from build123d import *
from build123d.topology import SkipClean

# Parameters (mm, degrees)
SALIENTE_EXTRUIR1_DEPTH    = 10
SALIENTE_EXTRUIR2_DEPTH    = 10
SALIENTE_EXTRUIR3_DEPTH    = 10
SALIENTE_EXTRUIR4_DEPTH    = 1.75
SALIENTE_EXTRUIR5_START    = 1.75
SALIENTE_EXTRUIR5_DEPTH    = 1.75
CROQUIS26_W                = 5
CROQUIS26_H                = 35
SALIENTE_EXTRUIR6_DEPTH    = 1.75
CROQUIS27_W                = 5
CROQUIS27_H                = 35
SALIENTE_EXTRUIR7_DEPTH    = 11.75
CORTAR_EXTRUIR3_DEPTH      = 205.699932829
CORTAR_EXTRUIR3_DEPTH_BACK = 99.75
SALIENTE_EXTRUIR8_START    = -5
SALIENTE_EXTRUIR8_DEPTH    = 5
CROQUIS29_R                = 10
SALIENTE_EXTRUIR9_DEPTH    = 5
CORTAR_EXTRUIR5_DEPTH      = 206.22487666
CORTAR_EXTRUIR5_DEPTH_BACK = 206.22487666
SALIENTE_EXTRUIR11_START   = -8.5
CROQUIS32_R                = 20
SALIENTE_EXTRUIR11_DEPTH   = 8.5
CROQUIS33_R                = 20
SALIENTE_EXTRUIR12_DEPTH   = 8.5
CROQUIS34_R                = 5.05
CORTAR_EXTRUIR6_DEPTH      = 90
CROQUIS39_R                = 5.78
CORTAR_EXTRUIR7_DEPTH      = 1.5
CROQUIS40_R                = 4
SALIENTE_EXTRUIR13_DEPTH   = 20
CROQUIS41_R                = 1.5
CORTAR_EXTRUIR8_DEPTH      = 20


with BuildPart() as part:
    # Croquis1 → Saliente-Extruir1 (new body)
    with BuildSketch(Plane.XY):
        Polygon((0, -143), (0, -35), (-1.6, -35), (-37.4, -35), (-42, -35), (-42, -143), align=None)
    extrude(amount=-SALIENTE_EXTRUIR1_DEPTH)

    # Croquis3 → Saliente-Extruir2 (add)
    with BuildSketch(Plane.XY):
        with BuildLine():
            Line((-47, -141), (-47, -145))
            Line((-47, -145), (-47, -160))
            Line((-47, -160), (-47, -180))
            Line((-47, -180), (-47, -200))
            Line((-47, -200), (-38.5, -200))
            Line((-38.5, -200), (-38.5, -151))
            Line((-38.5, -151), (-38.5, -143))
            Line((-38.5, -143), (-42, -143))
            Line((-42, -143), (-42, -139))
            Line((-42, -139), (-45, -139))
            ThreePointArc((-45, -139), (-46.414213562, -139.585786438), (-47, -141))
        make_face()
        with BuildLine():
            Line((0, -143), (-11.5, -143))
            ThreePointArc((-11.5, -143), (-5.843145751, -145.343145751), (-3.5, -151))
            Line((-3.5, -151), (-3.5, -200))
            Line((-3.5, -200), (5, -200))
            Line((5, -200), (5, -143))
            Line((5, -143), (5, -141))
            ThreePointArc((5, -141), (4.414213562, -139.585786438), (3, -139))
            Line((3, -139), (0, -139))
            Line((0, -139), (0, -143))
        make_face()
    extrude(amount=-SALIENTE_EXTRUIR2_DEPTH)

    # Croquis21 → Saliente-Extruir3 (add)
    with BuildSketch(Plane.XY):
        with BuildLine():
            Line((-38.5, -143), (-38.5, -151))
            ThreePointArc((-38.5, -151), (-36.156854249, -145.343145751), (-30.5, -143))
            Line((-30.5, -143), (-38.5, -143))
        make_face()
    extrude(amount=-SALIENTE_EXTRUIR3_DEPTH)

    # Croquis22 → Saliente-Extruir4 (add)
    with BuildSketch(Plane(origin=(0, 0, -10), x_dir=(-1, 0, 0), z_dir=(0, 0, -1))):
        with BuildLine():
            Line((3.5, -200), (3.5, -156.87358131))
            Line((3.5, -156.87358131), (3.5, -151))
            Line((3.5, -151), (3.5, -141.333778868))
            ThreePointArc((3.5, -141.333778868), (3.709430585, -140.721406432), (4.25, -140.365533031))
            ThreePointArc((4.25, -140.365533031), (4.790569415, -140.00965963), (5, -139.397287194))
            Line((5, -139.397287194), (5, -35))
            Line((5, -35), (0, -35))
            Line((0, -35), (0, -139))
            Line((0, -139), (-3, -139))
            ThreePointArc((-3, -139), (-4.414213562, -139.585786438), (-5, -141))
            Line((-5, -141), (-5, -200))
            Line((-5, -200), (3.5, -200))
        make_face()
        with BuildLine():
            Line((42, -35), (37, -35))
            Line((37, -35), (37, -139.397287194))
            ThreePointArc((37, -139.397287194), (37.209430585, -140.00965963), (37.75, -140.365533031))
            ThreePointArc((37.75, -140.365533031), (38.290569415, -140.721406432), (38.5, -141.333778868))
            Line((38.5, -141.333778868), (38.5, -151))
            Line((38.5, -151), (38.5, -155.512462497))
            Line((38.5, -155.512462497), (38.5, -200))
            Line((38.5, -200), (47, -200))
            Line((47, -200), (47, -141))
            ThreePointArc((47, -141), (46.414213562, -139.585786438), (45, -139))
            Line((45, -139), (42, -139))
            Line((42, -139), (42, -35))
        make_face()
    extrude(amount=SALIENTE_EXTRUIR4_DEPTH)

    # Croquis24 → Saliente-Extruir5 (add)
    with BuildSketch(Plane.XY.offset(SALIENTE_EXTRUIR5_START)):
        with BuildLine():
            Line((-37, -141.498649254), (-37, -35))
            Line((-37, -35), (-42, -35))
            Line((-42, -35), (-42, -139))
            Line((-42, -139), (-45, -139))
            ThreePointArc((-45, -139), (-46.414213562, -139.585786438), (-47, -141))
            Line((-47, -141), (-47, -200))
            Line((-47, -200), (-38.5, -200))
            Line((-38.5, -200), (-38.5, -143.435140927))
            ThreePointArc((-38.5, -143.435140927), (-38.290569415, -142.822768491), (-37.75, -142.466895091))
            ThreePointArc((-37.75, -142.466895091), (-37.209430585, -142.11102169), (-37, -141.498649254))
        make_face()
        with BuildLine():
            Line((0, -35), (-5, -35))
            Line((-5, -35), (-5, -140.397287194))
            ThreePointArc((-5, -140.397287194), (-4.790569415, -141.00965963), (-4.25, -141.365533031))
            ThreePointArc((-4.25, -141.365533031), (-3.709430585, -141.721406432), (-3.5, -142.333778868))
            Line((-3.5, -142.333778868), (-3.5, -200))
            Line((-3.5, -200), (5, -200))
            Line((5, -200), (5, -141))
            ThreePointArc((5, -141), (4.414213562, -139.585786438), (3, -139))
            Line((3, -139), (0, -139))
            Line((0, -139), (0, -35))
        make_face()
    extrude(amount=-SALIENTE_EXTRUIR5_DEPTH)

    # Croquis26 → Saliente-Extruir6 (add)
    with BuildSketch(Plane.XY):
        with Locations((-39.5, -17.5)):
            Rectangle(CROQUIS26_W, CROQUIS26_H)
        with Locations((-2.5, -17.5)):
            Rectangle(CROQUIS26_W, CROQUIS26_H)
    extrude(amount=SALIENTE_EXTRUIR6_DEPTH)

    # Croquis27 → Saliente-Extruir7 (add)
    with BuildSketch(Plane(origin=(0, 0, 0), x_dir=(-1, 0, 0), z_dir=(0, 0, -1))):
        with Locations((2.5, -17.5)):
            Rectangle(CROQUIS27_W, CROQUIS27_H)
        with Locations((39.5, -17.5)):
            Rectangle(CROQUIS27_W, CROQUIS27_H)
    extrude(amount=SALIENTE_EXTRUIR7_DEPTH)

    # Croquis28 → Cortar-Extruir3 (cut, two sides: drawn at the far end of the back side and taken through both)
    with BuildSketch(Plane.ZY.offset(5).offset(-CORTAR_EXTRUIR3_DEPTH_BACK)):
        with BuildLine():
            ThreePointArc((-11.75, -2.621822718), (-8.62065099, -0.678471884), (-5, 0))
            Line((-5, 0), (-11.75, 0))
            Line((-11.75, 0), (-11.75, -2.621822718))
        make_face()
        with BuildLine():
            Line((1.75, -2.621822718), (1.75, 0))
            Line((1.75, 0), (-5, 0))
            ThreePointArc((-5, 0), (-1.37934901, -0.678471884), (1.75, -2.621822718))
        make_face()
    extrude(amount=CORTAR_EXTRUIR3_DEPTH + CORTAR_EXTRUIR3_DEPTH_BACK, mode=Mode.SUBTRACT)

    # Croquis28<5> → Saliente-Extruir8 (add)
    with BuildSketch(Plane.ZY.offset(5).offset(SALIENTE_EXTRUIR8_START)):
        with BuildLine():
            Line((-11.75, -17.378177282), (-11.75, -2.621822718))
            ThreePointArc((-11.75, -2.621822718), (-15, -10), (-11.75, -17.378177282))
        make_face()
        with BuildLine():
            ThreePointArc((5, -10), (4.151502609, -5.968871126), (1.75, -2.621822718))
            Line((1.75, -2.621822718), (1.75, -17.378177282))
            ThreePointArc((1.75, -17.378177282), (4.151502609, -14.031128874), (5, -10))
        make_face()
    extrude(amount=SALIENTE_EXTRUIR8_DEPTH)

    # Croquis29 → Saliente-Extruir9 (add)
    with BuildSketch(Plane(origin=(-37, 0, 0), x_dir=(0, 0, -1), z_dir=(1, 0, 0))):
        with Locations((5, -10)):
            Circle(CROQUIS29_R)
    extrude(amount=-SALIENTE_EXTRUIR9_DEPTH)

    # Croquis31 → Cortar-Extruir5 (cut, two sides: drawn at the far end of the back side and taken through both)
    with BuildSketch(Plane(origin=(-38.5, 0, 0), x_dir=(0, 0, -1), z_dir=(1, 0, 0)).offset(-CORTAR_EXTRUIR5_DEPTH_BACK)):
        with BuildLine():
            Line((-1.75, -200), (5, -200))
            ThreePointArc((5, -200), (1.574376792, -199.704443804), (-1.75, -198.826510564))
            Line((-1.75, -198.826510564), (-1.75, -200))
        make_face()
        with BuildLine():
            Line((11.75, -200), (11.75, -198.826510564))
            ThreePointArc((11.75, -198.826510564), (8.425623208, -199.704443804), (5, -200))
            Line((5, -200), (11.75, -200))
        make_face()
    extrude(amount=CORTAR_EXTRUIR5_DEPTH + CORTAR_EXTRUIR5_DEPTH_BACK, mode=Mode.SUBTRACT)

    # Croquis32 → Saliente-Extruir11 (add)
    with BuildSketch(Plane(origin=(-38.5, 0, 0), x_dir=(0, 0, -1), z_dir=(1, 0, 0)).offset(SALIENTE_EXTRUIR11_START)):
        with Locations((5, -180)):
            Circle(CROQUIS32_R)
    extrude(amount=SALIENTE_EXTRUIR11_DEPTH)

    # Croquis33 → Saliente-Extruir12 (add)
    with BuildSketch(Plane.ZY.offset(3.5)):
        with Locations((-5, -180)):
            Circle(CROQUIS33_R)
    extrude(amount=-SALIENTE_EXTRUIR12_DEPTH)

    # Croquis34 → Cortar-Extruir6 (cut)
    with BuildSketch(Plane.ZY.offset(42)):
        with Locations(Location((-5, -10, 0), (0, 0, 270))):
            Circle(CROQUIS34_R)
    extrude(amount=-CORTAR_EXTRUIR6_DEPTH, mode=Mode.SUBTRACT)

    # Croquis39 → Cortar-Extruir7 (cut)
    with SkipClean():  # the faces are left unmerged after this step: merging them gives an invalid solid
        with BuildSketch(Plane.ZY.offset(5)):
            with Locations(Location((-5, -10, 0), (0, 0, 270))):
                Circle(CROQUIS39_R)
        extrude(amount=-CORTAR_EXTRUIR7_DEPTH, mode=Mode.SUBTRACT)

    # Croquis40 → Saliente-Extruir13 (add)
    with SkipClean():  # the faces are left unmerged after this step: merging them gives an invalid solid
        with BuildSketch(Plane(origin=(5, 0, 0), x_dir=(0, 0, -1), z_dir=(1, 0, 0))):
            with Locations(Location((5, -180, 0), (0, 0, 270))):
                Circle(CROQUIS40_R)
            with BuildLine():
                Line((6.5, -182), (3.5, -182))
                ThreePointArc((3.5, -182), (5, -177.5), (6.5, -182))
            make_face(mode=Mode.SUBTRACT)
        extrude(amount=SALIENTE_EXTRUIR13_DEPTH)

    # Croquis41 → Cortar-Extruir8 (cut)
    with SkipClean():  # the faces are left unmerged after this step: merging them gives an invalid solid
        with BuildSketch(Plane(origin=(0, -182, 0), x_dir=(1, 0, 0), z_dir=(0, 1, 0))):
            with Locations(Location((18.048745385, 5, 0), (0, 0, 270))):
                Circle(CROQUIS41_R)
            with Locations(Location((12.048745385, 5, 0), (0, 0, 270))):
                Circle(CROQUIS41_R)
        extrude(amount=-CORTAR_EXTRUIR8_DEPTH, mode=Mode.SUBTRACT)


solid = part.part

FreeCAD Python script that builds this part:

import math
import FreeCAD as App
import Part
import Sketcher
Q = App.Units.Quantity


def add_polygon(sketch, points):
    """Adds a closed chain of lines whose ends are joined by coincident constraints."""
    first, n = sketch.GeometryCount, len(points)
    for a, b in zip(points, points[1:] + points[:1]):
        sketch.addGeometry(Part.LineSegment(App.Vector(*a, 0), App.Vector(*b, 0)), False)
    for i in range(n):
        sketch.addConstraint(Sketcher.Constraint("Coincident", first + i, 2, first + (i + 1) % n, 1))

doc = App.newDocument("Part")
body = doc.addObject("PartDesign::Body", "Body")

# Sketch on XY plane
sketch1 = doc.addObject("Sketcher::SketchObject", "Sketch")
body.addObject(sketch1)
sketch1.AttachmentSupport = (doc.XY_Plane, [""])
sketch1.MapMode = "FlatFace"
add_polygon(sketch1, [(0, -143), (0, -35), (-42, -35), (-42, -143)])  # lines 0-3
sketch1.addConstraint(Sketcher.Constraint("Vertical", 0))
sketch1.addConstraint(Sketcher.Constraint("Horizontal", 1))
sketch1.addConstraint(Sketcher.Constraint("Vertical", 2))
sketch1.addConstraint(Sketcher.Constraint("Horizontal", 3))
sketch1.addConstraint(Sketcher.Constraint("PointOnObject", 0, 2, -2))
sketch1.addConstraint(Sketcher.Constraint("DistanceX", 1, 2, 1, 1, Q("42 mm")))
sketch1.addConstraint(Sketcher.Constraint("DistanceY", 0, 1, 0, 2, Q("108 mm")))
sketch1.addConstraint(Sketcher.Constraint("DistanceY", 0, 2, -1, 1, Q("35 mm")))
pad1 = doc.addObject("PartDesign::Pad", "Pad")
body.addObject(pad1)
pad1.Profile = sketch1
pad1.Length = 10
pad1.Reversed = True

# Sketch on XY plane
sketch2 = doc.addObject("Sketcher::SketchObject", "Sketch001")
body.addObject(sketch2)
sketch2.AttachmentSupport = (doc.XY_Plane, [""])
sketch2.MapMode = "FlatFace"
sketch2.addGeometry(Part.LineSegment(App.Vector(-47, -141, 0), App.Vector(-47, -200, 0)), False)
sketch2.addGeometry(Part.LineSegment(App.Vector(-47, -200, 0), App.Vector(-38.5, -200, 0)), False)
sketch2.addGeometry(Part.LineSegment(App.Vector(-38.5, -200, 0), App.Vector(-38.5, -143, 0)), False)
sketch2.addGeometry(Part.LineSegment(App.Vector(-38.5, -143, 0), App.Vector(-42, -143, 0)), False)
sketch2.addGeometry(Part.LineSegment(App.Vector(-42, -143, 0), App.Vector(-42, -139, 0)), False)
sketch2.addGeometry(Part.LineSegment(App.Vector(-42, -139, 0), App.Vector(-45, -139, 0)), False)
sketch2.addGeometry(Part.ArcOfCircle(Part.Circle(App.Vector(-45, -141, 0), App.Vector(0, 0, 1), 2), math.radians(90), math.radians(180)), False)
sketch2.addGeometry(Part.LineSegment(App.Vector(0, -143, 0), App.Vector(-11.5, -143, 0)), False)
sketch2.addGeometry(Part.ArcOfCircle(Part.Circle(App.Vector(-11.5, -151, 0), App.Vector(0, 0, 1), 8), math.radians(0), math.radians(90)), False)
sketch2.addGeometry(Part.LineSegment(App.Vector(-3.5, -151, 0), App.Vector(-3.5, -200, 0)), False)
sketch2.addGeometry(Part.LineSegment(App.Vector(-3.5, -200, 0), App.Vector(5, -200, 0)), False)
sketch2.addGeometry(Part.LineSegment(App.Vector(5, -200, 0), App.Vector(5, -141, 0)), False)
sketch2.addGeometry(Part.ArcOfCircle(Part.Circle(App.Vector(3, -141, 0), App.Vector(0, 0, 1), 2), math.radians(0), math.radians(90)), False)
sketch2.addGeometry(Part.LineSegment(App.Vector(3, -139, 0), App.Vector(0, -139, 0)), False)
sketch2.addGeometry(Part.LineSegment(App.Vector(0, -139, 0), App.Vector(0, -143, 0)), False)
sketch2.addConstraint(Sketcher.Constraint("Coincident", 0, 2, 1, 1))
sketch2.addConstraint(Sketcher.Constraint("Coincident", 1, 2, 2, 1))
sketch2.addConstraint(Sketcher.Constraint("Coincident", 2, 2, 3, 1))
sketch2.addConstraint(Sketcher.Constraint("Coincident", 3, 2, 4, 1))
sketch2.addConstraint(Sketcher.Constraint("Coincident", 4, 2, 5, 1))
sketch2.addConstraint(Sketcher.Constraint("Tangent", 5, 2, 6, 1))
sketch2.addConstraint(Sketcher.Constraint("Tangent", 6, 2, 0, 1))
sketch2.addConstraint(Sketcher.Constraint("Tangent", 7, 2, 8, 2))
sketch2.addConstraint(Sketcher.Constraint("Tangent", 8, 1, 9, 1))
sketch2.addConstraint(Sketcher.Constraint("Coincident", 9, 2, 10, 1))
sketch2.addConstraint(Sketcher.Constraint("Coincident", 10, 2, 11, 1))
sketch2.addConstraint(Sketcher.Constraint("Tangent", 11, 2, 12, 1))
sketch2.addConstraint(Sketcher.Constraint("Tangent", 12, 2, 13, 1))
sketch2.addConstraint(Sketcher.Constraint("Coincident", 13, 2, 14, 1))
sketch2.addConstraint(Sketcher.Constraint("Coincident", 14, 2, 7, 1))
sketch2.addConstraint(Sketcher.Constraint("Vertical", 0))
sketch2.addConstraint(Sketcher.Constraint("Horizontal", 1))
sketch2.addConstraint(Sketcher.Constraint("Vertical", 2))
sketch2.addConstraint(Sketcher.Constraint("Horizontal", 3))
sketch2.addConstraint(Sketcher.Constraint("Vertical", 4))
sketch2.addConstraint(Sketcher.Constraint("Horizontal", 5))
sketch2.addConstraint(Sketcher.Constraint("Horizontal", 7))
sketch2.addConstraint(Sketcher.Constraint("Vertical", 9))
sketch2.addConstraint(Sketcher.Constraint("Horizontal", 10))
sketch2.addConstraint(Sketcher.Constraint("Vertical", 11))
sketch2.addConstraint(Sketcher.Constraint("Horizontal", 13))
sketch2.addConstraint(Sketcher.Constraint("Vertical", 14))
sketch2.addConstraint(Sketcher.Constraint("Equal", 6, 12))
sketch2.addConstraint(Sketcher.Constraint("PointOnObject", 13, 2, -2))
sketch2.addConstraint(Sketcher.Constraint("Horizontal", 6, 3, 12, 3))
sketch2.addConstraint(Sketcher.Constraint("Horizontal", 3, 2, 7, 2))
sketch2.addConstraint(Sketcher.Constraint("Horizontal", 1, 2, 9, 2))
sketch2.addConstraint(Sketcher.Constraint("Equal", 1, 10))
sketch2.addConstraint(Sketcher.Constraint("Equal", 5, 13))
sketch2.addConstraint(Sketcher.Constraint("Radius", 6, Q("2 mm")))
sketch2.addConstraint(Sketcher.Constraint("Radius", 8, Q("8 mm")))
sketch2.addConstraint(Sketcher.Constraint("DistanceX", 5, 2, 5, 1, Q("3 mm")))
sketch2.addConstraint(Sketcher.Constraint("DistanceY", 0, 2, 0, 1, Q("59 mm")))
sketch2.addConstraint(Sketcher.Constraint("DistanceY", 2, 1, 2, 2, Q("57 mm")))
sketch2.addConstraint(Sketcher.Constraint("DistanceX", 1, 1, 1, 2, Q("8.5 mm")))
sketch2.addConstraint(Sketcher.Constraint("DistanceX", 6, 3, -1, 1, Q("45 mm")))
sketch2.addConstraint(Sketcher.Constraint("DistanceY", 6, 3, -1, 1, Q("141 mm")))
pad2 = doc.addObject("PartDesign::Pad", "Pad001")
body.addObject(pad2)
pad2.Profile = sketch2
pad2.Length = 10
pad2.Reversed = True

# Sketch on XY plane
sketch3 = doc.addObject("Sketcher::SketchObject", "Sketch002")
body.addObject(sketch3)
sketch3.AttachmentSupport = (doc.XY_Plane, [""])
sketch3.MapMode = "FlatFace"
sketch3.addGeometry(Part.LineSegment(App.Vector(-38.5, -143, 0), App.Vector(-38.5, -151, 0)), False)
sketch3.addGeometry(Part.ArcOfCircle(Part.Circle(App.Vector(-30.5, -151, 0), App.Vector(0, 0, 1), 8), math.radians(90), math.radians(180)), False)
sketch3.addGeometry(Part.LineSegment(App.Vector(-30.5, -143, 0), App.Vector(-38.5, -143, 0)), False)
sketch3.addConstraint(Sketcher.Constraint("Tangent", 0, 2, 1, 2))
sketch3.addConstraint(Sketcher.Constraint("Tangent", 1, 1, 2, 1))
sketch3.addConstraint(Sketcher.Constraint("Coincident", 2, 2, 0, 1))
sketch3.addConstraint(Sketcher.Constraint("Vertical", 0))
sketch3.addConstraint(Sketcher.Constraint("Horizontal", 2))
sketch3.addConstraint(Sketcher.Constraint("Radius", 1, Q("8 mm")))
sketch3.addConstraint(Sketcher.Constraint("DistanceY", 1, 3, -1, 1, Q("151 mm")))
sketch3.addConstraint(Sketcher.Constraint("DistanceX", 1, 3, -1, 1, Q("30.5 mm")))
pad3 = doc.addObject("PartDesign::Pad", "Pad002")
body.addObject(pad3)
pad3.Profile = sketch3
pad3.Length = 10
pad3.Reversed = True

# Sketch on XY plane
sketch4 = doc.addObject("Sketcher::SketchObject", "Sketch003")
body.addObject(sketch4)
sketch4.AttachmentSupport = (doc.XY_Plane, [""])
sketch4.MapMode = "FlatFace"
sketch4.AttachmentOffset = App.Placement(App.Vector(0, 0, -10), App.Rotation())
sketch4.addGeometry(Part.LineSegment(App.Vector(-3.5, -200, 0), App.Vector(-3.5, -141.333779, 0)), False)
sketch4.addGeometry(Part.ArcOfCircle(Part.Circle(App.Vector(-4.5, -141.333779, 0), App.Vector(0, 0, 1), 1), math.radians(0), math.radians(75.522488)), False)
sketch4.addGeometry(Part.ArcOfCircle(Part.Circle(App.Vector(-4, -139.397287, 0), App.Vector(0, 0, 1), 1), math.radians(180), math.radians(255.522488)), False)
sketch4.addGeometry(Part.LineSegment(App.Vector(-5, -139.397287, 0), App.Vector(-5, -35, 0)), False)
sketch4.addGeometry(Part.LineSegment(App.Vector(-5, -35, 0), App.Vector(0, -35, 0)), False)
sketch4.addGeometry(Part.LineSegment(App.Vector(0, -35, 0), App.Vector(0, -139, 0)), False)
sketch4.addGeometry(Part.LineSegment(App.Vector(0, -139, 0), App.Vector(3, -139, 0)), False)
sketch4.addGeometry(Part.ArcOfCircle(Part.Circle(App.Vector(3, -141, 0), App.Vector(0, 0, 1), 2), math.radians(0), math.radians(90)), False)
sketch4.addGeometry(Part.LineSegment(App.Vector(5, -141, 0), App.Vector(5, -200, 0)), False)
sketch4.addGeometry(Part.LineSegment(App.Vector(5, -200, 0), App.Vector(-3.5, -200, 0)), False)
sketch4.addGeometry(Part.LineSegment(App.Vector(-42, -35, 0), App.Vector(-37, -35, 0)), False)
sketch4.addGeometry(Part.LineSegment(App.Vector(-37, -35, 0), App.Vector(-37, -139.397287, 0)), False)
sketch4.addGeometry(Part.ArcOfCircle(Part.Circle(App.Vector(-38, -139.397287, 0), App.Vector(0, 0, 1), 1), math.radians(-75.522488), math.radians(0)), False)
sketch4.addGeometry(Part.ArcOfCircle(Part.Circle(App.Vector(-37.5, -141.333779, 0), App.Vector(0, 0, 1), 1), math.radians(104.477512), math.radians(180)), False)
sketch4.addGeometry(Part.LineSegment(App.Vector(-38.5, -141.333779, 0), App.Vector(-38.5, -200, 0)), False)
sketch4.addGeometry(Part.LineSegment(App.Vector(-38.5, -200, 0), App.Vector(-47, -200, 0)), False)
sketch4.addGeometry(Part.LineSegment(App.Vector(-47, -200, 0), App.Vector(-47, -141, 0)), False)
sketch4.addGeometry(Part.ArcOfCircle(Part.Circle(App.Vector(-45, -141, 0), App.Vector(0, 0, 1), 2), math.radians(90), math.radians(180)), False)
sketch4.addGeometry(Part.LineSegment(App.Vector(-45, -139, 0), App.Vector(-42, -139, 0)), False)
sketch4.addGeometry(Part.LineSegment(App.Vector(-42, -139, 0), App.Vector(-42, -35, 0)), False)
sketch4.addConstraint(Sketcher.Constraint("Tangent", 0, 2, 1, 1))
sketch4.addConstraint(Sketcher.Constraint("Tangent", 1, 2, 2, 2))
sketch4.addConstraint(Sketcher.Constraint("Tangent", 2, 1, 3, 1))
sketch4.addConstraint(Sketcher.Constraint("Coincident", 3, 2, 4, 1))
sketch4.addConstraint(Sketcher.Constraint("Coincident", 4, 2, 5, 1))
sketch4.addConstraint(Sketcher.Constraint("Coincident", 5, 2, 6, 1))
sketch4.addConstraint(Sketcher.Constraint("Tangent", 6, 2, 7, 2))
sketch4.addConstraint(Sketcher.Constraint("Tangent", 7, 1, 8, 1))
sketch4.addConstraint(Sketcher.Constraint("Coincident", 8, 2, 9, 1))
sketch4.addConstraint(Sketcher.Constraint("Coincident", 9, 2, 0, 1))
sketch4.addConstraint(Sketcher.Constraint("Coincident", 10, 2, 11, 1))
sketch4.addConstraint(Sketcher.Constraint("Tangent", 11, 2, 12, 2))
sketch4.addConstraint(Sketcher.Constraint("Tangent", 12, 1, 13, 1))
sketch4.addConstraint(Sketcher.Constraint("Tangent", 13, 2, 14, 1))
sketch4.addConstraint(Sketcher.Constraint("Coincident", 14, 2, 15, 1))
sketch4.addConstraint(Sketcher.Constraint("Coincident", 15, 2, 16, 1))
sketch4.addConstraint(Sketcher.Constraint("Tangent", 16, 2, 17, 2))
sketch4.addConstraint(Sketcher.Constraint("Tangent", 17, 1, 18, 1))
sketch4.addConstraint(Sketcher.Constraint("Coincident", 18, 2, 19, 1))
sketch4.addConstraint(Sketcher.Constraint("Coincident", 19, 2, 10, 1))
sketch4.addConstraint(Sketcher.Constraint("Vertical", 0))
sketch4.addConstraint(Sketcher.Constraint("Vertical", 3))
sketch4.addConstraint(Sketcher.Constraint("Horizontal", 4))
sketch4.addConstraint(Sketcher.Constraint("Vertical", 5))
sketch4.addConstraint(Sketcher.Constraint("Horizontal", 6))
sketch4.addConstraint(Sketcher.Constraint("Vertical", 8))
sketch4.addConstraint(Sketcher.Constraint("Horizontal", 9))
sketch4.addConstraint(Sketcher.Constraint("Horizontal", 10))
sketch4.addConstraint(Sketcher.Constraint("Vertical", 11))
sketch4.addConstraint(Sketcher.Constraint("Vertical", 14))
sketch4.addConstraint(Sketcher.Constraint("Horizontal", 15))
sketch4.addConstraint(Sketcher.Constraint("Vertical", 16))
sketch4.addConstraint(Sketcher.Constraint("Horizontal", 18))
sketch4.addConstraint(Sketcher.Constraint("Vertical", 19))
sketch4.addConstraint(Sketcher.Constraint("Equal", 1, 2))
sketch4.addConstraint(Sketcher.Constraint("Equal", 2, 12))
sketch4.addConstraint(Sketcher.Constraint("Equal", 12, 13))
sketch4.addConstraint(Sketcher.Constraint("Equal", 7, 17))
sketch4.addConstraint(Sketcher.Constraint("PointOnObject", 4, 2, -2))
sketch4.addConstraint(Sketcher.Constraint("Horizontal", 2, 3, 12, 3))
sketch4.addConstraint(Sketcher.Constraint("Horizontal", 1, 3, 13, 3))
sketch4.addConstraint(Sketcher.Constraint("Horizontal", 7, 3, 17, 3))
sketch4.addConstraint(Sketcher.Constraint("Horizontal", 4, 2, 10, 2))
sketch4.addConstraint(Sketcher.Constraint("Horizontal", 9, 2, 14, 2))
sketch4.addConstraint(Sketcher.Constraint("Equal", 4, 10))
sketch4.addConstraint(Sketcher.Constraint("Equal", 9, 15))
sketch4.addConstraint(Sketcher.Constraint("Radius", 1, Q("1 mm")))
sketch4.addConstraint(Sketcher.Constraint("Radius", 7, Q("2 mm")))
sketch4.addConstraint(Sketcher.Constraint("DistanceX", 4, 1, 4, 2, Q("5 mm")))
sketch4.addConstraint(Sketcher.Constraint("DistanceX", 6, 1, 6, 2, Q("3 mm")))
sketch4.addConstraint(Sketcher.Constraint("DistanceY", 5, 2, 5, 1, Q("104 mm")))
sketch4.addConstraint(Sketcher.Constraint("DistanceY", 8, 2, 8, 1, Q("59 mm")))
sketch4.addConstraint(Sketcher.Constraint("DistanceX", 9, 2, 9, 1, Q("8.5 mm")))
sketch4.addConstraint(Sketcher.Constraint("DistanceY", 7, 3, -1, 1, Q("141 mm")))
sketch4.addConstraint(Sketcher.Constraint("DistanceX", 12, 3, -1, 1, Q("38 mm")))
sketch4.addConstraint(Sketcher.Constraint("DistanceY", 0, 1, 0, 2, Q("58.666221 mm")))
pad4 = doc.addObject("PartDesign::Pad", "Pad003")
body.addObject(pad4)
pad4.Profile = sketch4
pad4.Length = 1.75
pad4.Reversed = True

# Sketch on XY plane
sketch5 = doc.addObject("Sketcher::SketchObject", "Sketch004")
body.addObject(sketch5)
sketch5.AttachmentSupport = (doc.XY_Plane, [""])
sketch5.MapMode = "FlatFace"
sketch5.AttachmentOffset = App.Placement(App.Vector(0, 0, 1.75), App.Rotation())
sketch5.addGeometry(Part.LineSegment(App.Vector(-37, -141.498649, 0), App.Vector(-37, -35, 0)), False)
sketch5.addGeometry(Part.LineSegment(App.Vector(-37, -35, 0), App.Vector(-42, -35, 0)), False)
sketch5.addGeometry(Part.LineSegment(App.Vector(-42, -35, 0), App.Vector(-42, -139, 0)), False)
sketch5.addGeometry(Part.LineSegment(App.Vector(-42, -139, 0), App.Vector(-45, -139, 0)), False)
sketch5.addGeometry(Part.ArcOfCircle(Part.Circle(App.Vector(-45, -141, 0), App.Vector(0, 0, 1), 2), math.radians(90), math.radians(180)), False)
sketch5.addGeometry(Part.LineSegment(App.Vector(-47, -141, 0), App.Vector(-47, -200, 0)), False)
sketch5.addGeometry(Part.LineSegment(App.Vector(-47, -200, 0), App.Vector(-38.5, -200, 0)), False)
sketch5.addGeometry(Part.LineSegment(App.Vector(-38.5, -200, 0), App.Vector(-38.5, -143.435141, 0)), False)
sketch5.addGeometry(Part.ArcOfCircle(Part.Circle(App.Vector(-37.5, -143.435141, 0), App.Vector(0, 0, 1), 1), math.radians(104.477512), math.radians(180)), False)
sketch5.addGeometry(Part.ArcOfCircle(Part.Circle(App.Vector(-38, -141.498649, 0), App.Vector(0, 0, 1), 1), math.radians(-75.522488), math.radians(0)), False)
sketch5.addGeometry(Part.LineSegment(App.Vector(0, -35, 0), App.Vector(-5, -35, 0)), False)
sketch5.addGeometry(Part.LineSegment(App.Vector(-5, -35, 0), App.Vector(-5, -140.397287, 0)), False)
sketch5.addGeometry(Part.ArcOfCircle(Part.Circle(App.Vector(-4, -140.397287, 0), App.Vector(0, 0, 1), 1), math.radians(180), math.radians(255.522488)), False)
sketch5.addGeometry(Part.ArcOfCircle(Part.Circle(App.Vector(-4.5, -142.333779, 0), App.Vector(0, 0, 1), 1), math.radians(0), math.radians(75.522488)), False)
sketch5.addGeometry(Part.LineSegment(App.Vector(-3.5, -142.333779, 0), App.Vector(-3.5, -200, 0)), False)
sketch5.addGeometry(Part.LineSegment(App.Vector(-3.5, -200, 0), App.Vector(5, -200, 0)), False)
sketch5.addGeometry(Part.LineSegment(App.Vector(5, -200, 0), App.Vector(5, -141, 0)), False)
sketch5.addGeometry(Part.ArcOfCircle(Part.Circle(App.Vector(3, -141, 0), App.Vector(0, 0, 1), 2), math.radians(0), math.radians(90)), False)
sketch5.addGeometry(Part.LineSegment(App.Vector(3, -139, 0), App.Vector(0, -139, 0)), False)
sketch5.addGeometry(Part.LineSegment(App.Vector(0, -139, 0), App.Vector(0, -35, 0)), False)
sketch5.addConstraint(Sketcher.Constraint("Coincident", 0, 2, 1, 1))
sketch5.addConstraint(Sketcher.Constraint("Coincident", 1, 2, 2, 1))
sketch5.addConstraint(Sketcher.Constraint("Coincident", 2, 2, 3, 1))
sketch5.addConstraint(Sketcher.Constraint("Tangent", 3, 2, 4, 1))
sketch5.addConstraint(Sketcher.Constraint("Tangent", 4, 2, 5, 1))
sketch5.addConstraint(Sketcher.Constraint("Coincident", 5, 2, 6, 1))
sketch5.addConstraint(Sketcher.Constraint("Coincident", 6, 2, 7, 1))
sketch5.addConstraint(Sketcher.Constraint("Tangent", 7, 2, 8, 2))
sketch5.addConstraint(Sketcher.Constraint("Tangent", 8, 1, 9, 1))
sketch5.addConstraint(Sketcher.Constraint("Tangent", 9, 2, 0, 1))
sketch5.addConstraint(Sketcher.Constraint("Coincident", 10, 2, 11, 1))
sketch5.addConstraint(Sketcher.Constraint("Tangent", 11, 2, 12, 1))
sketch5.addConstraint(Sketcher.Constraint("Tangent", 12, 2, 13, 2))
sketch5.addConstraint(Sketcher.Constraint("Tangent", 13, 1, 14, 1))
sketch5.addConstraint(Sketcher.Constraint("Coincident", 14, 2, 15, 1))
sketch5.addConstraint(Sketcher.Constraint("Coincident", 15, 2, 16, 1))
sketch5.addConstraint(Sketcher.Constraint("Tangent", 16, 2, 17, 1))
sketch5.addConstraint(Sketcher.Constraint("Tangent", 17, 2, 18, 1))
sketch5.addConstraint(Sketcher.Constraint("Coincident", 18, 2, 19, 1))
sketch5.addConstraint(Sketcher.Constraint("Coincident", 19, 2, 10, 1))
sketch5.addConstraint(Sketcher.Constraint("Vertical", 0))
sketch5.addConstraint(Sketcher.Constraint("Horizontal", 1))
sketch5.addConstraint(Sketcher.Constraint("Vertical", 2))
sketch5.addConstraint(Sketcher.Constraint("Horizontal", 3))
sketch5.addConstraint(Sketcher.Constraint("Vertical", 5))
sketch5.addConstraint(Sketcher.Constraint("Horizontal", 6))
sketch5.addConstraint(Sketcher.Constraint("Vertical", 7))
sketch5.addConstraint(Sketcher.Constraint("Horizontal", 10))
sketch5.addConstraint(Sketcher.Constraint("Vertical", 11))
sketch5.addConstraint(Sketcher.Constraint("Vertical", 14))
sketch5.addConstraint(Sketcher.Constraint("Horizontal", 15))
sketch5.addConstraint(Sketcher.Constraint("Vertical", 16))
sketch5.addConstraint(Sketcher.Constraint("Horizontal", 18))
sketch5.addConstraint(Sketcher.Constraint("Vertical", 19))
sketch5.addConstraint(Sketcher.Constraint("Equal", 8, 9))
sketch5.addConstraint(Sketcher.Constraint("Equal", 9, 12))
sketch5.addConstraint(Sketcher.Constraint("Equal", 12, 13))
sketch5.addConstraint(Sketcher.Constraint("Equal", 4, 17))
sketch5.addConstraint(Sketcher.Constraint("PointOnObject", 18, 2, -2))
sketch5.addConstraint(Sketcher.Constraint("Horizontal", 4, 3, 17, 3))
sketch5.addConstraint(Sketcher.Constraint("Horizontal", 1, 2, 10, 2))
sketch5.addConstraint(Sketcher.Constraint("Horizontal", 6, 2, 14, 2))
sketch5.addConstraint(Sketcher.Constraint("Equal", 1, 10))
sketch5.addConstraint(Sketcher.Constraint("Equal", 6, 15))
sketch5.addConstraint(Sketcher.Constraint("Equal", 3, 18))
sketch5.addConstraint(Sketcher.Constraint("Radius", 4, Q("2 mm")))
sketch5.addConstraint(Sketcher.Constraint("Radius", 8, Q("1 mm")))
sketch5.addConstraint(Sketcher.Constraint("DistanceX", 1, 2, 1, 1, Q("5 mm")))
sketch5.addConstraint(Sketcher.Constraint("DistanceX", 3, 2, 3, 1, Q("3 mm")))
sketch5.addConstraint(Sketcher.Constraint("DistanceY", 2, 2, 2, 1, Q("104 mm")))
sketch5.addConstraint(Sketcher.Constraint("DistanceY", 5, 2, 5, 1, Q("59 mm")))
sketch5.addConstraint(Sketcher.Constraint("DistanceX", 6, 1, 6, 2, Q("8.5 mm")))
sketch5.addConstraint(Sketcher.Constraint("DistanceX", 4, 3, -1, 1, Q("45 mm")))
sketch5.addConstraint(Sketcher.Constraint("DistanceY", 4, 3, -1, 1, Q("141 mm")))
sketch5.addConstraint(Sketcher.Constraint("DistanceY", 0, 1, 0, 2, Q("106.498649 mm")))
sketch5.addConstraint(Sketcher.Constraint("DistanceY", 14, 2, 14, 1, Q("57.666221 mm")))
pad5 = doc.addObject("PartDesign::Pad", "Pad004")
body.addObject(pad5)
pad5.Profile = sketch5
pad5.Length = 1.75
pad5.Reversed = True

# Sketch on XY plane
sketch6 = doc.addObject("Sketcher::SketchObject", "Sketch005")
body.addObject(sketch6)
sketch6.AttachmentSupport = (doc.XY_Plane, [""])
sketch6.MapMode = "FlatFace"
add_polygon(sketch6, [(-42, 0), (-42, -35), (-37, -35), (-37, 0)])  # lines 0-3
add_polygon(sketch6, [(-5, 0), (-5, -35), (0, -35), (0, 0)])  # lines 4-7
sketch6.addConstraint(Sketcher.Constraint("Vertical", 0))
sketch6.addConstraint(Sketcher.Constraint("Horizontal", 1))
sketch6.addConstraint(Sketcher.Constraint("Vertical", 2))
sketch6.addConstraint(Sketcher.Constraint("Horizontal", 3))
sketch6.addConstraint(Sketcher.Constraint("Vertical", 4))
sketch6.addConstraint(Sketcher.Constraint("Horizontal", 5))
sketch6.addConstraint(Sketcher.Constraint("Vertical", 6))
sketch6.addConstraint(Sketcher.Constraint("Horizontal", 7))
sketch6.addConstraint(Sketcher.Constraint("Coincident", 6, 2, -1, 1))
sketch6.addConstraint(Sketcher.Constraint("PointOnObject", 2, 2, -1))
sketch6.addConstraint(Sketcher.Constraint("Horizontal", 1, 2, 4, 2))
sketch6.addConstraint(Sketcher.Constraint("Equal", 3, 5))
sketch6.addConstraint(Sketcher.Constraint("DistanceX", 1, 1, 1, 2, Q("5 mm")))
sketch6.addConstraint(Sketcher.Constraint("DistanceY", 0, 2, 0, 1, Q("35 mm")))
sketch6.addConstraint(Sketcher.Constraint("DistanceX", 0, 2, -1, 1, Q("42 mm")))
pad6 = doc.addObject("PartDesign::Pad", "Pad005")
body.addObject(pad6)
pad6.Profile = sketch6
pad6.Length = 1.75

# Sketch on XY plane
sketch7 = doc.addObject("Sketcher::SketchObject", "Sketch006")
body.addObject(sketch7)
sketch7.AttachmentSupport = (doc.XY_Plane, [""])
sketch7.MapMode = "FlatFace"
add_polygon(sketch7, [(0, 0), (0, -35), (-5, -35), (-5, 0)])  # lines 0-3
add_polygon(sketch7, [(-37, 0), (-37, -35), (-42, -35), (-42, 0)])  # lines 4-7
sketch7.addConstraint(Sketcher.Constraint("Vertical", 0))
sketch7.addConstraint(Sketcher.Constraint("Horizontal", 1))
sketch7.addConstraint(Sketcher.Constraint("Vertical", 2))
sketch7.addConstraint(Sketcher.Constraint("Horizontal", 3))
sketch7.addConstraint(Sketcher.Constraint("Vertical", 4))
sketch7.addConstraint(Sketcher.Constraint("Horizontal", 5))
sketch7.addConstraint(Sketcher.Constraint("Vertical", 6))
sketch7.addConstraint(Sketcher.Constraint("Horizontal", 7))
sketch7.addConstraint(Sketcher.Constraint("Coincident", 3, 2, -1, 1))
sketch7.addConstraint(Sketcher.Constraint("PointOnObject", 6, 2, -1))
sketch7.addConstraint(Sketcher.Constraint("Horizontal", 1, 2, 4, 2))
sketch7.addConstraint(Sketcher.Constraint("Equal", 3, 5))
sketch7.addConstraint(Sketcher.Constraint("DistanceX", 1, 2, 1, 1, Q("5 mm")))
sketch7.addConstraint(Sketcher.Constraint("DistanceY", 0, 2, 0, 1, Q("35 mm")))
sketch7.addConstraint(Sketcher.Constraint("DistanceX", 4, 2, -1, 1, Q("37 mm")))
pad7 = doc.addObject("PartDesign::Pad", "Pad006")
body.addObject(pad7)
pad7.Profile = sketch7
pad7.Length = 11.75
pad7.Reversed = True

# Sketch on YZ plane
sketch8 = doc.addObject("Sketcher::SketchObject", "Sketch007")
body.addObject(sketch8)
sketch8.AttachmentSupport = (doc.YZ_Plane, [""])
sketch8.MapMode = "FlatFace"
sketch8.AttachmentOffset = App.Placement(App.Vector(0, 0, -5), App.Rotation())
sketch8.addGeometry(Part.ArcOfCircle(Part.Circle(App.Vector(-10, -5, 0), App.Vector(0, 0, 1), 10), math.radians(-42.45415), math.radians(0)), False)
sketch8.addGeometry(Part.LineSegment(App.Vector(0, -5, 0), App.Vector(0, -11.75, 0)), False)
sketch8.addGeometry(Part.LineSegment(App.Vector(0, -11.75, 0), App.Vector(-2.621823, -11.75, 0)), False)
sketch8.addGeometry(Part.LineSegment(App.Vector(-2.621823, 1.75, 0), App.Vector(0, 1.75, 0)), False)
sketch8.addGeometry(Part.LineSegment(App.Vector(0, 1.75, 0), App.Vector(0, -5, 0)), False)
sketch8.addGeometry(Part.ArcOfCircle(Part.Circle(App.Vector(-10, -5, 0), App.Vector(0, 0, 1), 10), math.radians(0), math.radians(42.45415)), False)
sketch8.addConstraint(Sketcher.Constraint("Tangent", 0, 2, 1, 1))
sketch8.addConstraint(Sketcher.Constraint("Coincident", 1, 2, 2, 1))
sketch8.addConstraint(Sketcher.Constraint("Coincident", 2, 2, 0, 1))
sketch8.addConstraint(Sketcher.Constraint("Coincident", 3, 2, 4, 1))
sketch8.addConstraint(Sketcher.Constraint("Tangent", 4, 2, 5, 1))
sketch8.addConstraint(Sketcher.Constraint("Coincident", 5, 2, 3, 1))
sketch8.addConstraint(Sketcher.Constraint("Vertical", 1))
sketch8.addConstraint(Sketcher.Constraint("Horizontal", 2))
sketch8.addConstraint(Sketcher.Constraint("Horizontal", 3))
sketch8.addConstraint(Sketcher.Constraint("Vertical", 4))
sketch8.addConstraint(Sketcher.Constraint("Coincident", 5, 3, 0, 3))
sketch8.addConstraint(Sketcher.Constraint("Equal", 0, 5))
sketch8.addConstraint(Sketcher.Constraint("PointOnObject", 0, 2, -2))
sketch8.addConstraint(Sketcher.Constraint("Vertical", 2, 2, 5, 2))
sketch8.addConstraint(Sketcher.Constraint("Radius", 0, Q("10 mm")))
sketch8.addConstraint(Sketcher.Constraint("DistanceY", 0, 3, -1, 1, Q("5 mm")))
sketch8.addConstraint(Sketcher.Constraint("DistanceY", 1, 2, 1, 1, Q("6.75 mm")))
pocket1 = doc.addObject("PartDesign::Pocket", "Pocket")
body.addObject(pocket1)
pocket1.Profile = sketch8
pocket1.Type = "ThroughAll"
pocket1.Midplane = True

# Sketch on YZ plane
sketch9 = doc.addObject("Sketcher::SketchObject", "Sketch008")
body.addObject(sketch9)
sketch9.AttachmentSupport = (doc.YZ_Plane, [""])
sketch9.MapMode = "FlatFace"
sketch9.addGeometry(Part.LineSegment(App.Vector(-17.378177, -11.75, 0), App.Vector(-2.621823, -11.75, 0)), False)
sketch9.addGeometry(Part.ArcOfCircle(Part.Circle(App.Vector(-10, -5, 0), App.Vector(0, 0, 1), 10), math.radians(-137.54585), math.radians(-42.45415)), False)
sketch9.addGeometry(Part.ArcOfCircle(Part.Circle(App.Vector(-10, -5, 0), App.Vector(0, 0, 1), 10), math.radians(42.45415), math.radians(90)), False)
sketch9.addGeometry(Part.LineSegment(App.Vector(-2.621823, 1.75, 0), App.Vector(-17.378177, 1.75, 0)), False)
sketch9.addGeometry(Part.ArcOfCircle(Part.Circle(App.Vector(-10, -5, 0), App.Vector(0, 0, 1), 10), math.radians(90), math.radians(137.54585)), False)
sketch9.addConstraint(Sketcher.Constraint("Coincident", 0, 1, 1, 1))
sketch9.addConstraint(Sketcher.Constraint("Coincident", 1, 2, 0, 2))
sketch9.addConstraint(Sketcher.Constraint("Coincident", 2, 1, 3, 1))
sketch9.addConstraint(Sketcher.Constraint("Coincident", 3, 2, 4, 2))
sketch9.addConstraint(Sketcher.Constraint("Tangent", 4, 1, 2, 2))
sketch9.addConstraint(Sketcher.Constraint("Horizontal", 0))
sketch9.addConstraint(Sketcher.Constraint("Horizontal", 3))
sketch9.addConstraint(Sketcher.Constraint("Coincident", 2, 3, 1, 3))
sketch9.addConstraint(Sketcher.Constraint("Equal", 1, 2))
sketch9.addConstraint(Sketcher.Constraint("Equal", 2, 4))
sketch9.addConstraint(Sketcher.Constraint("Vertical", 1, 2, 2, 1))
sketch9.addConstraint(Sketcher.Constraint("Vertical", 2, 3, 4, 1))
sketch9.addConstraint(Sketcher.Constraint("Radius", 1, Q("10 mm")))
sketch9.addConstraint(Sketcher.Constraint("DistanceX", 1, 3, -1, 1, Q("10 mm")))
sketch9.addConstraint(Sketcher.Constraint("DistanceY", 1, 3, -1, 1, Q("5 mm")))
sketch9.addConstraint(Sketcher.Constraint("DistanceY", 1, 2, 2, 1, Q("13.5 mm")))
pad8 = doc.addObject("PartDesign::Pad", "Pad007")
body.addObject(pad8)
pad8.Profile = sketch9
pad8.Length = 5
pad8.Reversed = True

# Sketch on YZ plane
sketch10 = doc.addObject("Sketcher::SketchObject", "Sketch009")
body.addObject(sketch10)
sketch10.AttachmentSupport = (doc.YZ_Plane, [""])
sketch10.MapMode = "FlatFace"
sketch10.AttachmentOffset = App.Placement(App.Vector(0, 0, -37), App.Rotation())
sketch10.addGeometry(Part.Circle(App.Vector(-10, -5, 0), App.Vector(0, 0, 1), 10), False)
sketch10.addConstraint(Sketcher.Constraint("Diameter", 0, Q("20 mm")))
sketch10.addConstraint(Sketcher.Constraint("DistanceX", 0, 3, -1, 1, Q("10 mm")))
sketch10.addConstraint(Sketcher.Constraint("DistanceY", 0, 3, -1, 1, Q("5 mm")))
pad9 = doc.addObject("PartDesign::Pad", "Pad008")
body.addObject(pad9)
pad9.Profile = sketch10
pad9.Length = 5
pad9.Reversed = True

# Sketch on YZ plane
sketch11 = doc.addObject("Sketcher::SketchObject", "Sketch010")
body.addObject(sketch11)
sketch11.AttachmentSupport = (doc.YZ_Plane, [""])
sketch11.MapMode = "FlatFace"
sketch11.AttachmentOffset = App.Placement(App.Vector(0, 0, -38.5), App.Rotation())
sketch11.addGeometry(Part.LineSegment(App.Vector(-200, 1.75, 0), App.Vector(-200, -5, 0)), False)
sketch11.addGeometry(Part.ArcOfCircle(Part.Circle(App.Vector(-180, -5, 0), App.Vector(0, 0, 1), 20), math.radians(160.275366), math.radians(180)), False)
sketch11.addGeometry(Part.LineSegment(App.Vector(-198.826511, 1.75, 0), App.Vector(-200, 1.75, 0)), False)
sketch11.addGeometry(Part.LineSegment(App.Vector(-200, -11.75, 0), App.Vector(-198.826511, -11.75, 0)), False)
sketch11.addGeometry(Part.ArcOfCircle(Part.Circle(App.Vector(-180, -5, 0), App.Vector(0, 0, 1), 20), math.radians(-180), math.radians(-160.275366)), False)
sketch11.addGeometry(Part.LineSegment(App.Vector(-200, -5, 0), App.Vector(-200, -11.75, 0)), False)
sketch11.addConstraint(Sketcher.Constraint("Tangent", 0, 2, 1, 2))
sketch11.addConstraint(Sketcher.Constraint("Coincident", 1, 1, 2, 1))
sketch11.addConstraint(Sketcher.Constraint("Coincident", 2, 2, 0, 1))
sketch11.addConstraint(Sketcher.Constraint("Coincident", 3, 2, 4, 2))
sketch11.addConstraint(Sketcher.Constraint("Tangent", 4, 1, 5, 1))
sketch11.addConstraint(Sketcher.Constraint("Coincident", 5, 2, 3, 1))
sketch11.addConstraint(Sketcher.Constraint("Vertical", 0))
sketch11.addConstraint(Sketcher.Constraint("Horizontal", 2))
sketch11.addConstraint(Sketcher.Constraint("Horizontal", 3))
sketch11.addConstraint(Sketcher.Constraint("Vertical", 5))
sketch11.addConstraint(Sketcher.Constraint("Coincident", 4, 3, 1, 3))
sketch11.addConstraint(Sketcher.Constraint("Equal", 1, 4))
sketch11.addConstraint(Sketcher.Constraint("Vertical", 1, 1, 3, 2))
sketch11.addConstraint(Sketcher.Constraint("Radius", 1, Q("20 mm")))
sketch11.addConstraint(Sketcher.Constraint("DistanceX", 1, 3, -1, 1, Q("180 mm")))
sketch11.addConstraint(Sketcher.Constraint("DistanceY", 1, 3, -1, 1, Q("5 mm")))
sketch11.addConstraint(Sketcher.Constraint("DistanceY", 0, 2, 0, 1, Q("6.75 mm")))
pocket2 = doc.addObject("PartDesign::Pocket", "Pocket001")
body.addObject(pocket2)
pocket2.Profile = sketch11
pocket2.Type = "ThroughAll"
pocket2.Midplane = True

# Sketch on YZ plane
sketch12 = doc.addObject("Sketcher::SketchObject", "Sketch011")
body.addObject(sketch12)
sketch12.AttachmentSupport = (doc.YZ_Plane, [""])
sketch12.MapMode = "FlatFace"
sketch12.AttachmentOffset = App.Placement(App.Vector(0, 0, -47), App.Rotation())
sketch12.addGeometry(Part.Circle(App.Vector(-180, -5, 0), App.Vector(0, 0, 1), 20), False)
sketch12.addConstraint(Sketcher.Constraint("Diameter", 0, Q("40 mm")))
sketch12.addConstraint(Sketcher.Constraint("DistanceX", 0, 3, -1, 1, Q("180 mm")))
sketch12.addConstraint(Sketcher.Constraint("DistanceY", 0, 3, -1, 1, Q("5 mm")))
pad10 = doc.addObject("PartDesign::Pad", "Pad009")
body.addObject(pad10)
pad10.Profile = sketch12
pad10.Length = 8.5

# Sketch on YZ plane
sketch13 = doc.addObject("Sketcher::SketchObject", "Sketch012")
body.addObject(sketch13)
sketch13.AttachmentSupport = (doc.YZ_Plane, [""])
sketch13.MapMode = "FlatFace"
sketch13.AttachmentOffset = App.Placement(App.Vector(0, 0, -3.5), App.Rotation())
sketch13.addGeometry(Part.Circle(App.Vector(-180, -5, 0), App.Vector(0, 0, 1), 20), False)
sketch13.addConstraint(Sketcher.Constraint("Diameter", 0, Q("40 mm")))
sketch13.addConstraint(Sketcher.Constraint("DistanceX", 0, 3, -1, 1, Q("180 mm")))
sketch13.addConstraint(Sketcher.Constraint("DistanceY", 0, 3, -1, 1, Q("5 mm")))
pad11 = doc.addObject("PartDesign::Pad", "Pad010")
body.addObject(pad11)
pad11.Profile = sketch13
pad11.Length = 8.5

# Sketch on YZ plane
sketch14 = doc.addObject("Sketcher::SketchObject", "Sketch013")
body.addObject(sketch14)
sketch14.AttachmentSupport = (doc.YZ_Plane, [""])
sketch14.MapMode = "FlatFace"
sketch14.AttachmentOffset = App.Placement(App.Vector(0, 0, -42), App.Rotation())
sketch14.addGeometry(Part.Circle(App.Vector(-10, -5, 0), App.Vector(0, 0, 1), 5.05), False)
sketch14.addConstraint(Sketcher.Constraint("Diameter", 0, Q("10.1 mm")))
sketch14.addConstraint(Sketcher.Constraint("DistanceX", 0, 3, -1, 1, Q("10 mm")))
sketch14.addConstraint(Sketcher.Constraint("DistanceY", 0, 3, -1, 1, Q("5 mm")))
pocket3 = doc.addObject("PartDesign::Pocket", "Pocket002")
body.addObject(pocket3)
pocket3.Profile = sketch14
pocket3.Length = 90
pocket3.Reversed = True

# Sketch on YZ plane
sketch15 = doc.addObject("Sketcher::SketchObject", "Sketch014")
body.addObject(sketch15)
sketch15.AttachmentSupport = (doc.YZ_Plane, [""])
sketch15.MapMode = "FlatFace"
sketch15.AttachmentOffset = App.Placement(App.Vector(0, 0, -5), App.Rotation())
sketch15.addGeometry(Part.Circle(App.Vector(-10, -5, 0), App.Vector(0, 0, 1), 5.78), False)
sketch15.addConstraint(Sketcher.Constraint("Diameter", 0, Q("11.56 mm")))
sketch15.addConstraint(Sketcher.Constraint("DistanceX", 0, 3, -1, 1, Q("10 mm")))
sketch15.addConstraint(Sketcher.Constraint("DistanceY", 0, 3, -1, 1, Q("5 mm")))
pocket4 = doc.addObject("PartDesign::Pocket", "Pocket003")
body.addObject(pocket4)
pocket4.Profile = sketch15
pocket4.Length = 1.5
pocket4.Reversed = True

# Sketch on YZ plane
sketch16 = doc.addObject("Sketcher::SketchObject", "Sketch015")
body.addObject(sketch16)
sketch16.AttachmentSupport = (doc.YZ_Plane, [""])
sketch16.MapMode = "FlatFace"
sketch16.AttachmentOffset = App.Placement(App.Vector(0, 0, 5), App.Rotation())
sketch16.addGeometry(Part.Circle(App.Vector(-180, -5, 0), App.Vector(0, 0, 1), 4), False)
sketch16.addGeometry(Part.ArcOfCircle(Part.Circle(App.Vector(-180, -5, 0), App.Vector(0, 0, 1), 2.5), math.radians(-143.130102), math.radians(143.130102)), False)
sketch16.addGeometry(Part.LineSegment(App.Vector(-182, -6.5, 0), App.Vector(-182, -3.5, 0)), False)
sketch16.addConstraint(Sketcher.Constraint("Coincident", 1, 1, 2, 1))
sketch16.addConstraint(Sketcher.Constraint("Coincident", 2, 2, 1, 2))
sketch16.addConstraint(Sketcher.Constraint("Vertical", 2))
sketch16.addConstraint(Sketcher.Constraint("Coincident", 1, 3, 0, 3))
sketch16.addConstraint(Sketcher.Constraint("Diameter", 0, Q("8 mm")))
sketch16.addConstraint(Sketcher.Constraint("Radius", 1, Q("2.5 mm")))
sketch16.addConstraint(Sketcher.Constraint("DistanceY", 2, 1, 2, 2, Q("3 mm")))
sketch16.addConstraint(Sketcher.Constraint("DistanceX", 0, 3, -1, 1, Q("180 mm")))
sketch16.addConstraint(Sketcher.Constraint("DistanceY", 0, 3, -1, 1, Q("5 mm")))
pad12 = doc.addObject("PartDesign::Pad", "Pad011")
body.addObject(pad12)
pad12.Profile = sketch16
pad12.Length = 20

# Sketch on XZ plane
sketch17 = doc.addObject("Sketcher::SketchObject", "Sketch016")
body.addObject(sketch17)
sketch17.AttachmentSupport = (doc.XZ_Plane, [""])
sketch17.MapMode = "FlatFace"
sketch17.AttachmentOffset = App.Placement(App.Vector(0, 0, 182), App.Rotation())
sketch17.addGeometry(Part.Circle(App.Vector(18.048745, -5, 0), App.Vector(0, 0, 1), 1.5), False)
sketch17.addGeometry(Part.Circle(App.Vector(12.048745, -5, 0), App.Vector(0, 0, 1), 1.5), False)
sketch17.addConstraint(Sketcher.Constraint("Equal", 0, 1))
sketch17.addConstraint(Sketcher.Constraint("Horizontal", 0, 3, 1, 3))
sketch17.addConstraint(Sketcher.Constraint("Diameter", 0, Q("3 mm")))
sketch17.addConstraint(Sketcher.Constraint("DistanceY", 0, 3, -1, 1, Q("5 mm")))
sketch17.addConstraint(Sketcher.Constraint("DistanceX", 1, 3, 0, 3, Q("6 mm")))
sketch17.addConstraint(Sketcher.Constraint("DistanceX", -1, 1, 0, 3, Q("18.048745 mm")))
pocket5 = doc.addObject("PartDesign::Pocket", "Pocket004")
body.addObject(pocket5)
pocket5.Profile = sketch17
pocket5.Length = 20
pocket5.Reversed = True

doc.recompute()
